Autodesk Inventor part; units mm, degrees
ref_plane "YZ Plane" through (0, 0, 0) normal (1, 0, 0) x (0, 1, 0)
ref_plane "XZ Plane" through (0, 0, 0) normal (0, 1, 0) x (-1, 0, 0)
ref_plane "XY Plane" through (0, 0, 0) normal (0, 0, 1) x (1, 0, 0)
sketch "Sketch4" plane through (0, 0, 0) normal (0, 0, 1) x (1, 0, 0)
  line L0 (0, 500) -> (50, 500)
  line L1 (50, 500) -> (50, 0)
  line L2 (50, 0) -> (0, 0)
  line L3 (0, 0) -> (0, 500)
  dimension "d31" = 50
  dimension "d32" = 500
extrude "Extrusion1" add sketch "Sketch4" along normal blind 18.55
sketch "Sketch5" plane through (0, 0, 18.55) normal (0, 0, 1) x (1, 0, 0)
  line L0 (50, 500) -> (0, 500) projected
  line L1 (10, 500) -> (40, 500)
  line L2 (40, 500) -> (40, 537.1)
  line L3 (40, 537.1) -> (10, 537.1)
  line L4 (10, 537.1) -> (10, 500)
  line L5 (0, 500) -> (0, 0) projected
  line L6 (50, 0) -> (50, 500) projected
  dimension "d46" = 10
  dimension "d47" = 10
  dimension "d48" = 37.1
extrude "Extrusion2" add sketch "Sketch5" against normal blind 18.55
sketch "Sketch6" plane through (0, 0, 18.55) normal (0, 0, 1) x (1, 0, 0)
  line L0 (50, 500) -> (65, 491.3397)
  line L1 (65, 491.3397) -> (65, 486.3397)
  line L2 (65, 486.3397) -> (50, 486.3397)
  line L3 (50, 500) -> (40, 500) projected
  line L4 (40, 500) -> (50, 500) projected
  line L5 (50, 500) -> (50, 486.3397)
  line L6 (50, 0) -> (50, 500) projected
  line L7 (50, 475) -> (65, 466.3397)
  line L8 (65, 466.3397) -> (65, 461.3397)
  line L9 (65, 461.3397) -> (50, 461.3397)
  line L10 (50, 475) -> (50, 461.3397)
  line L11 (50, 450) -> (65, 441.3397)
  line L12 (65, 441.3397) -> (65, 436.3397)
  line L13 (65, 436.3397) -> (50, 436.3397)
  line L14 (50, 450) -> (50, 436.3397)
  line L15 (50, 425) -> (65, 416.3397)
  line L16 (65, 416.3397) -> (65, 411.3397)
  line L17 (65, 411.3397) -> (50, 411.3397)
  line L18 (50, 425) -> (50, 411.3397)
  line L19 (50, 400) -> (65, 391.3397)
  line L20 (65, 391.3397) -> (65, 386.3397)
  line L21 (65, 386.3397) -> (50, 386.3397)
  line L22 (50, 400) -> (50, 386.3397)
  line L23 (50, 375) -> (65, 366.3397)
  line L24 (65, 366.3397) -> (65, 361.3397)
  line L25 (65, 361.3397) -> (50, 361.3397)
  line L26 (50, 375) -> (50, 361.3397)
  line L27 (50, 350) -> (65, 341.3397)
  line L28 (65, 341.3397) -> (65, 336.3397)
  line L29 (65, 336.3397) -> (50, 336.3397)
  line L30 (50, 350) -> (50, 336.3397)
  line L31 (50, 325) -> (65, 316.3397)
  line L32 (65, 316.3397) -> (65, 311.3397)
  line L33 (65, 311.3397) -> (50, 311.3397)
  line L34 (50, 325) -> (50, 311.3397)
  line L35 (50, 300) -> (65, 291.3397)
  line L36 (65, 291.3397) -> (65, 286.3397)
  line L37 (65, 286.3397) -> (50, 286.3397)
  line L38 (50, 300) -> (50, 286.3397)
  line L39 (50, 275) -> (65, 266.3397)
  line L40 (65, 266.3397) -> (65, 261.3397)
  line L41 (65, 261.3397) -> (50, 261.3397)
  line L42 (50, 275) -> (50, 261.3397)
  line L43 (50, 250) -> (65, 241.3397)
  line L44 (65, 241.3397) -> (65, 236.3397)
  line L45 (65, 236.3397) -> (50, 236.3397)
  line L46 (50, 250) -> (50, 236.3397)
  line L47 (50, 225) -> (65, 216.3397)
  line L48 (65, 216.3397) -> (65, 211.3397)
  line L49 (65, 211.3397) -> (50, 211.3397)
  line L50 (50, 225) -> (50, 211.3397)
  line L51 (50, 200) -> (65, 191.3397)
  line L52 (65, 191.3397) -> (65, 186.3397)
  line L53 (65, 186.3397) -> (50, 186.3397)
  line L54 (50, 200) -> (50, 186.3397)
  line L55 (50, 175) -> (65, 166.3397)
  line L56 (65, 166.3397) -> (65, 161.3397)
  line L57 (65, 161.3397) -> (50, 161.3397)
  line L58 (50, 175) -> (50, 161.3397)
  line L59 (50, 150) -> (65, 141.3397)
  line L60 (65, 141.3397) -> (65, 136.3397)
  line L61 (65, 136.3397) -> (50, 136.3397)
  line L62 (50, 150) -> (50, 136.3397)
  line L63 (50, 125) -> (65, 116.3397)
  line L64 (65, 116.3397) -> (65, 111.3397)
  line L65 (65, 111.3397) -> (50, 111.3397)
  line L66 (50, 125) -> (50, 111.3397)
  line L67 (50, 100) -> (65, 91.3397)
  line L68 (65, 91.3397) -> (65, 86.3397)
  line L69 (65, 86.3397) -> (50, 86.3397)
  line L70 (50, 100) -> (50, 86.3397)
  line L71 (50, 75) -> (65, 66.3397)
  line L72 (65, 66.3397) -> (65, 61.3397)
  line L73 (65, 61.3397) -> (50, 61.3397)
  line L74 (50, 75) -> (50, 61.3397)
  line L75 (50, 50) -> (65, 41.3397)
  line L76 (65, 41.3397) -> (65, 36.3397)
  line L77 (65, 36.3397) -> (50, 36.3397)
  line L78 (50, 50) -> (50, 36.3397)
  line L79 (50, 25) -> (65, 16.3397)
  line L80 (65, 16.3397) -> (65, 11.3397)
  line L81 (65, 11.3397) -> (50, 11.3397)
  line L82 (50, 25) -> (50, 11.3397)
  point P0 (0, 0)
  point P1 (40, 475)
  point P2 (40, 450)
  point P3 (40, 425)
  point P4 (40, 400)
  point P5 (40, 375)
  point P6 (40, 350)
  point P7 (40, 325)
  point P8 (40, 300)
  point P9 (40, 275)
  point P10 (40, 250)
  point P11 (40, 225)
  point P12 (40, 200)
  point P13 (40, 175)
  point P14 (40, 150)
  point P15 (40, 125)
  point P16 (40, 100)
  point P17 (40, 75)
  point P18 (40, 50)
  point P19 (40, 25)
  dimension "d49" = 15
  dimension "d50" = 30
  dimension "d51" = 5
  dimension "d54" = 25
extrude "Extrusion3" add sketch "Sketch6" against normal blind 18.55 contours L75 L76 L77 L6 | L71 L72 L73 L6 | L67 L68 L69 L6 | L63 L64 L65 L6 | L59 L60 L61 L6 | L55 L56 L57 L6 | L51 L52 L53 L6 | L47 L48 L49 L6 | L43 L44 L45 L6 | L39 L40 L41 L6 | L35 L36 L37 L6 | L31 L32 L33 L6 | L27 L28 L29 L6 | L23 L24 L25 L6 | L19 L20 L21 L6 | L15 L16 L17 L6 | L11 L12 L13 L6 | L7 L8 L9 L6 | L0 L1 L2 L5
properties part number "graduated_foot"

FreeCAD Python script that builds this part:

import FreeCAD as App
import Part
import Sketcher
Q = App.Units.Quantity

doc = App.newDocument("Part")
params = doc.addObject("Spreadsheet::Sheet", "Params")
for row, (alias, value) in enumerate([
    ("sketch1_width", "50 mm"),
    ("sketch1_height", "500 mm"),
    ("pad1_length", "18.55 mm"),
    ("sketch2_height", "37.1 mm"),
    ("sketch2_width", "30 mm"),
    ("pad2_length", "18.55 mm"),
    ("sketch3_width", "15 mm"),
    ("sketch3_height", "5 mm"),
    ("pad3_length", "18.55 mm"),
], start=1):
    params.set(f"A{row}", alias)
    params.set(f"B{row}", "=" + value)
    params.setAlias(f"B{row}", alias)

body = doc.addObject("PartDesign::Body", "Body")

sketch1 = doc.addObject("Sketcher::SketchObject", "Sketch")
body.addObject(sketch1)
sketch1.AttachmentSupport = (doc.XY_Plane, [""])
sketch1.MapMode = "FlatFace"
sketch1.addGeometry([
    Part.LineSegment(App.Vector(50, 500, 0), App.Vector(0, 500, 0)),
    Part.LineSegment(App.Vector(0, 500, 0), App.Vector(0, 0, 0)),
    Part.LineSegment(App.Vector(0, 0, 0), App.Vector(50, 0, 0)),
    Part.LineSegment(App.Vector(50, 0, 0), App.Vector(50, 500, 0)),
], False)
sketch1.addConstraint([
    Sketcher.Constraint("Coincident", 0, 2, 1, 1),
    Sketcher.Constraint("Coincident", 1, 2, 2, 1),
    Sketcher.Constraint("Coincident", 2, 2, 3, 1),
    Sketcher.Constraint("Coincident", 3, 2, 0, 1),
    Sketcher.Constraint("Horizontal", 0),
    Sketcher.Constraint("Vertical", 1),
    Sketcher.Constraint("Horizontal", 2),
    Sketcher.Constraint("Vertical", 3),
    Sketcher.Constraint("Coincident", 1, 2, -1, 1),
    Sketcher.Constraint("DistanceX", 0, 2, 0, 1, 50.0),
    Sketcher.Constraint("DistanceY", 1, 2, 1, 1, 500.0),
])
sketch1.setExpression("Constraints[9]", "Params.sketch1_width")
sketch1.setExpression("Constraints[10]", "Params.sketch1_height")
pad1 = doc.addObject("PartDesign::Pad", "Pad")
body.addObject(pad1)
pad1.Profile = sketch1
pad1.setExpression("Length", "Params.pad1_length")

sketch2 = doc.addObject("Sketcher::SketchObject", "Sketch001")
body.addObject(sketch2)
sketch2.AttachmentSupport = (doc.XY_Plane, [""])
sketch2.MapMode = "FlatFace"
sketch2.AttachmentOffset = App.Placement(App.Vector(0, 0, 18.55), App.Rotation())
sketch2.addGeometry([
    Part.LineSegment(App.Vector(10, 500, 0), App.Vector(40, 500, 0)),
    Part.LineSegment(App.Vector(40, 500, 0), App.Vector(40, 537.1, 0)),
    Part.LineSegment(App.Vector(40, 537.1, 0), App.Vector(10, 537.1, 0)),
    Part.LineSegment(App.Vector(10, 537.1, 0), App.Vector(10, 500, 0)),
], False)
sketch2.addConstraint([
    Sketcher.Constraint("Coincident", 0, 2, 1, 1),
    Sketcher.Constraint("Coincident", 1, 2, 2, 1),
    Sketcher.Constraint("Coincident", 2, 2, 3, 1),
    Sketcher.Constraint("Coincident", 3, 2, 0, 1),
    Sketcher.Constraint("Horizontal", 0),
    Sketcher.Constraint("Vertical", 1),
    Sketcher.Constraint("Horizontal", 2),
    Sketcher.Constraint("Vertical", 3),
    Sketcher.Constraint("DistanceY", 1, 1, 1, 2, 37.1),
    Sketcher.Constraint("DistanceX", -1, 1, 2, 2, 10.0),
    Sketcher.Constraint("DistanceX", 0, 1, 0, 2, 30.0),
    Sketcher.Constraint("DistanceY", -1, 1, 0, 2, 500.0),
])
sketch2.setExpression("Constraints[8]", "Params.sketch2_height")
sketch2.setExpression("Constraints[10]", "Params.sketch2_width")
pad2 = doc.addObject("PartDesign::Pad", "Pad001")
body.addObject(pad2)
pad2.Profile = sketch2
pad2.setExpression("Length", "Params.pad2_length")
pad2.Reversed = True

sketch3 = doc.addObject("Sketcher::SketchObject", "Sketch002")
body.addObject(sketch3)
sketch3.AttachmentSupport = (doc.XY_Plane, [""])
sketch3.MapMode = "FlatFace"
sketch3.AttachmentOffset = App.Placement(App.Vector(0, 0, 18.55), App.Rotation())
sketch3.addGeometry([
    Part.LineSegment(App.Vector(65, 41.3397, 0), App.Vector(50, 50, 0)),
    Part.LineSegment(App.Vector(50, 50, 0), App.Vector(50, 36.3397, 0)),
    Part.LineSegment(App.Vector(50, 36.3397, 0), App.Vector(65, 36.3397, 0)),
    Part.LineSegment(App.Vector(65, 36.3397, 0), App.Vector(65, 41.3397, 0)),
    Part.LineSegment(App.Vector(65, 66.3397, 0), App.Vector(50, 75, 0)),
    Part.LineSegment(App.Vector(50, 75, 0), App.Vector(50, 61.3397, 0)),
    Part.LineSegment(App.Vector(50, 61.3397, 0), App.Vector(65, 61.3397, 0)),
    Part.LineSegment(App.Vector(65, 61.3397, 0), App.Vector(65, 66.3397, 0)),
    Part.LineSegment(App.Vector(65, 91.3397, 0), App.Vector(50, 100, 0)),
    Part.LineSegment(App.Vector(50, 100, 0), App.Vector(50, 86.3397, 0)),
    Part.LineSegment(App.Vector(50, 86.3397, 0), App.Vector(65, 86.3397, 0)),
    Part.LineSegment(App.Vector(65, 86.3397, 0), App.Vector(65, 91.3397, 0)),
    Part.LineSegment(App.Vector(65, 116.3397, 0), App.Vector(50, 125, 0)),
    Part.LineSegment(App.Vector(50, 125, 0), App.Vector(50, 111.3397, 0)),
    Part.LineSegment(App.Vector(50, 111.3397, 0), App.Vector(65, 111.3397, 0)),
    Part.LineSegment(App.Vector(65, 111.3397, 0), App.Vector(65, 116.3397, 0)),
    Part.LineSegment(App.Vector(65, 141.3397, 0), App.Vector(50, 150, 0)),
    Part.LineSegment(App.Vector(50, 150, 0), App.Vector(50, 136.3397, 0)),
    Part.LineSegment(App.Vector(50, 136.3397, 0), App.Vector(65, 136.3397, 0)),
    Part.LineSegment(App.Vector(65, 136.3397, 0), App.Vector(65, 141.3397, 0)),
    Part.LineSegment(App.Vector(65, 166.3397, 0), App.Vector(50, 175, 0)),
    Part.LineSegment(App.Vector(50, 175, 0), App.Vector(50, 161.3397, 0)),
    Part.LineSegment(App.Vector(50, 161.3397, 0), App.Vector(65, 161.3397, 0)),
    Part.LineSegment(App.Vector(65, 161.3397, 0), App.Vector(65, 166.3397, 0)),
    Part.LineSegment(App.Vector(65, 191.3397, 0), App.Vector(50, 200, 0)),
    Part.LineSegment(App.Vector(50, 200, 0), App.Vector(50, 186.3397, 0)),
    Part.LineSegment(App.Vector(50, 186.3397, 0), App.Vector(65, 186.3397, 0)),
    Part.LineSegment(App.Vector(65, 186.3397, 0), App.Vector(65, 191.3397, 0)),
    Part.LineSegment(App.Vector(65, 216.3397, 0), App.Vector(50, 225, 0)),
    Part.LineSegment(App.Vector(50, 225, 0), App.Vector(50, 211.3397, 0)),
    Part.LineSegment(App.Vector(50, 211.3397, 0), App.Vector(65, 211.3397, 0)),
    Part.LineSegment(App.Vector(65, 211.3397, 0), App.Vector(65, 216.3397, 0)),
    Part.LineSegment(App.Vector(65, 241.3397, 0), App.Vector(50, 250, 0)),
    Part.LineSegment(App.Vector(50, 250, 0), App.Vector(50, 236.3397, 0)),
    Part.LineSegment(App.Vector(50, 236.3397, 0), App.Vector(65, 236.3397, 0)),
    Part.LineSegment(App.Vector(65, 236.3397, 0), App.Vector(65, 241.3397, 0)),
    Part.LineSegment(App.Vector(65, 266.3397, 0), App.Vector(50, 275, 0)),
    Part.LineSegment(App.Vector(50, 275, 0), App.Vector(50, 261.3397, 0)),
    Part.LineSegment(App.Vector(50, 261.3397, 0), App.Vector(65, 261.3397, 0)),
    Part.LineSegment(App.Vector(65, 261.3397, 0), App.Vector(65, 266.3397, 0)),
    Part.LineSegment(App.Vector(65, 291.3397, 0), App.Vector(50, 300, 0)),
    Part.LineSegment(App.Vector(50, 300, 0), App.Vector(50, 286.3397, 0)),
    Part.LineSegment(App.Vector(50, 286.3397, 0), App.Vector(65, 286.3397, 0)),
    Part.LineSegment(App.Vector(65, 286.3397, 0), App.Vector(65, 291.3397, 0)),
    Part.LineSegment(App.Vector(65, 316.3397, 0), App.Vector(50, 325, 0)),
    Part.LineSegment(App.Vector(50, 325, 0), App.Vector(50, 311.3397, 0)),
    Part.LineSegment(App.Vector(50, 311.3397, 0), App.Vector(65, 311.3397, 0)),
    Part.LineSegment(App.Vector(65, 311.3397, 0), App.Vector(65, 316.3397, 0)),
    Part.LineSegment(App.Vector(65, 341.3397, 0), App.Vector(50, 350, 0)),
    Part.LineSegment(App.Vector(50, 350, 0), App.Vector(50, 336.3397, 0)),
    Part.LineSegment(App.Vector(50, 336.3397, 0), App.Vector(65, 336.3397, 0)),
    Part.LineSegment(App.Vector(65, 336.3397, 0), App.Vector(65, 341.3397, 0)),
    Part.LineSegment(App.Vector(65, 366.3397, 0), App.Vector(50, 375, 0)),
    Part.LineSegment(App.Vector(50, 375, 0), App.Vector(50, 361.3397, 0)),
    Part.LineSegment(App.Vector(50, 361.3397, 0), App.Vector(65, 361.3397, 0)),
    Part.LineSegment(App.Vector(65, 361.3397, 0), App.Vector(65, 366.3397, 0)),
    Part.LineSegment(App.Vector(65, 391.3397, 0), App.Vector(50, 400, 0)),
    Part.LineSegment(App.Vector(50, 400, 0), App.Vector(50, 386.3397, 0)),
    Part.LineSegment(App.Vector(50, 386.3397, 0), App.Vector(65, 386.3397, 0)),
    Part.LineSegment(App.Vector(65, 386.3397, 0), App.Vector(65, 391.3397, 0)),
    Part.LineSegment(App.Vector(65, 416.3397, 0), App.Vector(50, 425, 0)),
    Part.LineSegment(App.Vector(50, 425, 0), App.Vector(50, 411.3397, 0)),
    Part.LineSegment(App.Vector(50, 411.3397, 0), App.Vector(65, 411.3397, 0)),
    Part.LineSegment(App.Vector(65, 411.3397, 0), App.Vector(65, 416.3397, 0)),
    Part.LineSegment(App.Vector(65, 441.3397, 0), App.Vector(50, 450, 0)),
    Part.LineSegment(App.Vector(50, 450, 0), App.Vector(50, 436.3397, 0)),
    Part.LineSegment(App.Vector(50, 436.3397, 0), App.Vector(65, 436.3397, 0)),
    Part.LineSegment(App.Vector(65, 436.3397, 0), App.Vector(65, 441.3397, 0)),
    Part.LineSegment(App.Vector(65, 466.3397, 0), App.Vector(50, 475, 0)),
    Part.LineSegment(App.Vector(50, 475, 0), App.Vector(50, 461.3397, 0)),
    Part.LineSegment(App.Vector(50, 461.3397, 0), App.Vector(65, 461.3397, 0)),
    Part.LineSegment(App.Vector(65, 461.3397, 0), App.Vector(65, 466.3397, 0)),
    Part.LineSegment(App.Vector(65, 491.3397, 0), App.Vector(50, 500, 0)),
    Part.LineSegment(App.Vector(50, 500, 0), App.Vector(50, 486.3397, 0)),
    Part.LineSegment(App.Vector(50, 486.3397, 0), App.Vector(65, 486.3397, 0)),
    Part.LineSegment(App.Vector(65, 486.3397, 0), App.Vector(65, 491.3397, 0)),
], False)
sketch3.addConstraint([
    Sketcher.Constraint("Coincident", 0, 2, 1, 1),
    Sketcher.Constraint("Coincident", 1, 2, 2, 1),
    Sketcher.Constraint("Coincident", 2, 2, 3, 1),
    Sketcher.Constraint("Coincident", 3, 2, 0, 1),
    Sketcher.Constraint("Coincident", 4, 2, 5, 1),
    Sketcher.Constraint("Coincident", 5, 2, 6, 1),
    Sketcher.Constraint("Coincident", 6, 2, 7, 1),
    Sketcher.Constraint("Coincident", 7, 2, 4, 1),
    Sketcher.Constraint("Coincident", 8, 2, 9, 1),
    Sketcher.Constraint("Coincident", 9, 2, 10, 1),
    Sketcher.Constraint("Coincident", 10, 2, 11, 1),
    Sketcher.Constraint("Coincident", 11, 2, 8, 1),
    Sketcher.Constraint("Coincident", 12, 2, 13, 1),
    Sketcher.Constraint("Coincident", 13, 2, 14, 1),
    Sketcher.Constraint("Coincident", 14, 2, 15, 1),
    Sketcher.Constraint("Coincident", 15, 2, 12, 1),
    Sketcher.Constraint("Coincident", 16, 2, 17, 1),
    Sketcher.Constraint("Coincident", 17, 2, 18, 1),
    Sketcher.Constraint("Coincident", 18, 2, 19, 1),
    Sketcher.Constraint("Coincident", 19, 2, 16, 1),
    Sketcher.Constraint("Coincident", 20, 2, 21, 1),
    Sketcher.Constraint("Coincident", 21, 2, 22, 1),
    Sketcher.Constraint("Coincident", 22, 2, 23, 1),
    Sketcher.Constraint("Coincident", 23, 2, 20, 1),
    Sketcher.Constraint("Coincident", 24, 2, 25, 1),
    Sketcher.Constraint("Coincident", 25, 2, 26, 1),
    Sketcher.Constraint("Coincident", 26, 2, 27, 1),
    Sketcher.Constraint("Coincident", 27, 2, 24, 1),
    Sketcher.Constraint("Coincident", 28, 2, 29, 1),
    Sketcher.Constraint("Coincident", 29, 2, 30, 1),
    Sketcher.Constraint("Coincident", 30, 2, 31, 1),
    Sketcher.Constraint("Coincident", 31, 2, 28, 1),
    Sketcher.Constraint("Coincident", 32, 2, 33, 1),
    Sketcher.Constraint("Coincident", 33, 2, 34, 1),
    Sketcher.Constraint("Coincident", 34, 2, 35, 1),
    Sketcher.Constraint("Coincident", 35, 2, 32, 1),
    Sketcher.Constraint("Coincident", 36, 2, 37, 1),
    Sketcher.Constraint("Coincident", 37, 2, 38, 1),
    Sketcher.Constraint("Coincident", 38, 2, 39, 1),
    Sketcher.Constraint("Coincident", 39, 2, 36, 1),
    Sketcher.Constraint("Coincident", 40, 2, 41, 1),
    Sketcher.Constraint("Coincident", 41, 2, 42, 1),
    Sketcher.Constraint("Coincident", 42, 2, 43, 1),
    Sketcher.Constraint("Coincident", 43, 2, 40, 1),
    Sketcher.Constraint("Coincident", 44, 2, 45, 1),
    Sketcher.Constraint("Coincident", 45, 2, 46, 1),
    Sketcher.Constraint("Coincident", 46, 2, 47, 1),
    Sketcher.Constraint("Coincident", 47, 2, 44, 1),
    Sketcher.Constraint("Coincident", 48, 2, 49, 1),
    Sketcher.Constraint("Coincident", 49, 2, 50, 1),
    Sketcher.Constraint("Coincident", 50, 2, 51, 1),
    Sketcher.Constraint("Coincident", 51, 2, 48, 1),
    Sketcher.Constraint("Coincident", 52, 2, 53, 1),
    Sketcher.Constraint("Coincident", 53, 2, 54, 1),
    Sketcher.Constraint("Coincident", 54, 2, 55, 1),
    Sketcher.Constraint("Coincident", 55, 2, 52, 1),
    Sketcher.Constraint("Coincident", 56, 2, 57, 1),
    Sketcher.Constraint("Coincident", 57, 2, 58, 1),
    Sketcher.Constraint("Coincident", 58, 2, 59, 1),
    Sketcher.Constraint("Coincident", 59, 2, 56, 1),
    Sketcher.Constraint("Coincident", 60, 2, 61, 1),
    Sketcher.Constraint("Coincident", 61, 2, 62, 1),
    Sketcher.Constraint("Coincident", 62, 2, 63, 1),
    Sketcher.Constraint("Coincident", 63, 2, 60, 1),
    Sketcher.Constraint("Coincident", 64, 2, 65, 1),
    Sketcher.Constraint("Coincident", 65, 2, 66, 1),
    Sketcher.Constraint("Coincident", 66, 2, 67, 1),
    Sketcher.Constraint("Coincident", 67, 2, 64, 1),
    Sketcher.Constraint("Coincident", 68, 2, 69, 1),
    Sketcher.Constraint("Coincident", 69, 2, 70, 1),
    Sketcher.Constraint("Coincident", 70, 2, 71, 1),
    Sketcher.Constraint("Coincident", 71, 2, 68, 1),
    Sketcher.Constraint("Coincident", 72, 2, 73, 1),
    Sketcher.Constraint("Coincident", 73, 2, 74, 1),
    Sketcher.Constraint("Coincident", 74, 2, 75, 1),
    Sketcher.Constraint("Coincident", 75, 2, 72, 1),
    Sketcher.Constraint("Vertical", 1),
    Sketcher.Constraint("Horizontal", 2),
    Sketcher.Constraint("Vertical", 3),
    Sketcher.Constraint("Vertical", 5),
    Sketcher.Constraint("Horizontal", 6),
    Sketcher.Constraint("Vertical", 7),
    Sketcher.Constraint("Vertical", 9),
    Sketcher.Constraint("Horizontal", 10),
    Sketcher.Constraint("Vertical", 11),
    Sketcher.Constraint("Vertical", 13),
    Sketcher.Constraint("Horizontal", 14),
    Sketcher.Constraint("Vertical", 15),
    Sketcher.Constraint("Vertical", 17),
    Sketcher.Constraint("Horizontal", 18),
    Sketcher.Constraint("Vertical", 19),
    Sketcher.Constraint("Vertical", 21),
    Sketcher.Constraint("Horizontal", 22),
    Sketcher.Constraint("Vertical", 23),
    Sketcher.Constraint("Vertical", 25),
    Sketcher.Constraint("Horizontal", 26),
    Sketcher.Constraint("Vertical", 27),
    Sketcher.Constraint("Vertical", 29),
    Sketcher.Constraint("Horizontal", 30),
    Sketcher.Constraint("Vertical", 31),
    Sketcher.Constraint("Vertical", 33),
    Sketcher.Constraint("Horizontal", 34),
    Sketcher.Constraint("Vertical", 35),
    Sketcher.Constraint("Vertical", 37),
    Sketcher.Constraint("Horizontal", 38),
    Sketcher.Constraint("Vertical", 39),
    Sketcher.Constraint("Vertical", 41),
    Sketcher.Constraint("Horizontal", 42),
    Sketcher.Constraint("Vertical", 43),
    Sketcher.Constraint("Vertical", 45),
    Sketcher.Constraint("Horizontal", 46),
    Sketcher.Constraint("Vertical", 47),
    Sketcher.Constraint("Vertical", 49),
    Sketcher.Constraint("Horizontal", 50),
    Sketcher.Constraint("Vertical", 51),
    Sketcher.Constraint("Vertical", 53),
    Sketcher.Constraint("Horizontal", 54),
    Sketcher.Constraint("Vertical", 55),
    Sketcher.Constraint("Vertical", 57),
    Sketcher.Constraint("Horizontal", 58),
    Sketcher.Constraint("Vertical", 59),
    Sketcher.Constraint("Vertical", 61),
    Sketcher.Constraint("Horizontal", 62),
    Sketcher.Constraint("Vertical", 63),
    Sketcher.Constraint("Vertical", 65),
    Sketcher.Constraint("Horizontal", 66),
    Sketcher.Constraint("Vertical", 67),
    Sketcher.Constraint("Vertical", 69),
    Sketcher.Constraint("Horizontal", 70),
    Sketcher.Constraint("Vertical", 71),
    Sketcher.Constraint("Vertical", 73),
    Sketcher.Constraint("Horizontal", 74),
    Sketcher.Constraint("Vertical", 75),
    Sketcher.Constraint("Parallel", 0, 4),
    Sketcher.Constraint("Parallel", 4, 8),
    Sketcher.Constraint("Parallel", 8, 12),
    Sketcher.Constraint("Parallel", 12, 16),
    Sketcher.Constraint("Parallel", 16, 20),
    Sketcher.Constraint("Parallel", 20, 24),
    Sketcher.Constraint("Parallel", 24, 28),
    Sketcher.Constraint("Parallel", 28, 32),
    Sketcher.Constraint("Parallel", 32, 36),
    Sketcher.Constraint("Parallel", 36, 40),
    Sketcher.Constraint("Parallel", 40, 44),
    Sketcher.Constraint("Parallel", 44, 48),
    Sketcher.Constraint("Parallel", 48, 52),
    Sketcher.Constraint("Parallel", 52, 56),
    Sketcher.Constraint("Parallel", 56, 60),
    Sketcher.Constraint("Parallel", 60, 64),
    Sketcher.Constraint("Parallel", 64, 68),
    Sketcher.Constraint("Parallel", 68, 72),
    Sketcher.Constraint("Vertical", 1, 2, 4, 2),
    Sketcher.Constraint("Vertical", 3, 2, 6, 2),
    Sketcher.Constraint("Vertical", 5, 2, 8, 2),
    Sketcher.Constraint("Vertical", 7, 2, 10, 2),
    Sketcher.Constraint("Vertical", 9, 2, 12, 2),
    Sketcher.Constraint("Vertical", 11, 2, 14, 2),
    Sketcher.Constraint("Vertical", 13, 2, 16, 2),
    Sketcher.Constraint("Vertical", 15, 2, 18, 2),
    Sketcher.Constraint("Vertical", 17, 2, 20, 2),
    Sketcher.Constraint("Vertical", 19, 2, 22, 2),
    Sketcher.Constraint("Vertical", 21, 2, 24, 2),
    Sketcher.Constraint("Vertical", 23, 2, 26, 2),
    Sketcher.Constraint("Vertical", 25, 2, 28, 2),
    Sketcher.Constraint("Vertical", 27, 2, 30, 2),
    Sketcher.Constraint("Vertical", 29, 2, 32, 2),
    Sketcher.Constraint("Vertical", 31, 2, 34, 2),
    Sketcher.Constraint("Vertical", 33, 2, 36, 2),
    Sketcher.Constraint("Vertical", 35, 2, 38, 2),
    Sketcher.Constraint("Vertical", 37, 2, 40, 2),
    Sketcher.Constraint("Vertical", 39, 2, 42, 2),
    Sketcher.Constraint("Vertical", 41, 2, 44, 2),
    Sketcher.Constraint("Vertical", 43, 2, 46, 2),
    Sketcher.Constraint("Vertical", 45, 2, 48, 2),
    Sketcher.Constraint("Vertical", 47, 2, 50, 2),
    Sketcher.Constraint("Vertical", 49, 2, 52, 2),
    Sketcher.Constraint("Vertical", 51, 2, 54, 2),
    Sketcher.Constraint("Vertical", 53, 2, 56, 2),
    Sketcher.Constraint("Vertical", 55, 2, 58, 2),
    Sketcher.Constraint("Vertical", 57, 2, 60, 2),
    Sketcher.Constraint("Vertical", 59, 2, 62, 2),
    Sketcher.Constraint("Vertical", 61, 2, 64, 2),
    Sketcher.Constraint("Vertical", 63, 2, 66, 2),
    Sketcher.Constraint("Vertical", 65, 2, 68, 2),
    Sketcher.Constraint("Vertical", 67, 2, 70, 2),
    Sketcher.Constraint("Vertical", 69, 2, 72, 2),
    Sketcher.Constraint("Vertical", 71, 2, 74, 2),
    Sketcher.Constraint("Equal", 1, 5),
    Sketcher.Constraint("Equal", 5, 9),
    Sketcher.Constraint("Equal", 9, 13),
    Sketcher.Constraint("Equal", 13, 17),
    Sketcher.Constraint("Equal", 17, 21),
    Sketcher.Constraint("Equal", 21, 25),
    Sketcher.Constraint("Equal", 25, 29),
    Sketcher.Constraint("Equal", 29, 33),
    Sketcher.Constraint("Equal", 33, 37),
    Sketcher.Constraint("Equal", 37, 41),
    Sketcher.Constraint("Equal", 41, 45),
    Sketcher.Constraint("Equal", 45, 49),
    Sketcher.Constraint("Equal", 49, 53),
    Sketcher.Constraint("Equal", 53, 57),
    Sketcher.Constraint("Equal", 57, 61),
    Sketcher.Constraint("Equal", 61, 65),
    Sketcher.Constraint("Equal", 65, 69),
    Sketcher.Constraint("Equal", 69, 73),
    Sketcher.Constraint("DistanceX", 2, 1, 2, 2, 15.0),
    Sketcher.Constraint("DistanceY", 3, 1, 3, 2, 5.0),
    Sketcher.Constraint("Angle", 0, Q("149.9999 deg")),
    Sketcher.Constraint("DistanceX", -1, 1, 0, 2, 50.0),
    Sketcher.Constraint("DistanceY", -1, 1, 0, 2, 50.0),
    Sketcher.Constraint("DistanceY", -1, 1, 4, 2, 75.0),
    Sketcher.Constraint("DistanceY", -1, 1, 8, 2, 100.0),
    Sketcher.Constraint("DistanceY", -1, 1, 12, 2, 125.0),
    Sketcher.Constraint("DistanceY", -1, 1, 16, 2, 150.0),
    Sketcher.Constraint("DistanceY", -1, 1, 20, 2, 175.0),
    Sketcher.Constraint("DistanceY", -1, 1, 24, 2, 200.0),
    Sketcher.Constraint("DistanceY", -1, 1, 28, 2, 225.0),
    Sketcher.Constraint("DistanceY", -1, 1, 32, 2, 250.0),
    Sketcher.Constraint("DistanceY", -1, 1, 36, 2, 275.0),
    Sketcher.Constraint("DistanceY", -1, 1, 40, 2, 300.0),
    Sketcher.Constraint("DistanceY", -1, 1, 44, 2, 325.0),
    Sketcher.Constraint("DistanceY", -1, 1, 48, 2, 350.0),
    Sketcher.Constraint("DistanceY", -1, 1, 52, 2, 375.0),
    Sketcher.Constraint("DistanceY", -1, 1, 56, 2, 400.0),
    Sketcher.Constraint("DistanceY", -1, 1, 60, 2, 425.0),
    Sketcher.Constraint("DistanceY", -1, 1, 64, 2, 450.0),
    Sketcher.Constraint("DistanceY", -1, 1, 68, 2, 475.0),
    Sketcher.Constraint("DistanceY", -1, 1, 72, 2, 500.0),
])
sketch3.setExpression("Constraints[205]", "Params.sketch3_width")
sketch3.setExpression("Constraints[206]", "Params.sketch3_height")
pad3 = doc.addObject("PartDesign::Pad", "Pad002")
body.addObject(pad3)
pad3.Profile = sketch3
pad3.setExpression("Length", "Params.pad3_length")
pad3.Reversed = True

doc.recompute()
